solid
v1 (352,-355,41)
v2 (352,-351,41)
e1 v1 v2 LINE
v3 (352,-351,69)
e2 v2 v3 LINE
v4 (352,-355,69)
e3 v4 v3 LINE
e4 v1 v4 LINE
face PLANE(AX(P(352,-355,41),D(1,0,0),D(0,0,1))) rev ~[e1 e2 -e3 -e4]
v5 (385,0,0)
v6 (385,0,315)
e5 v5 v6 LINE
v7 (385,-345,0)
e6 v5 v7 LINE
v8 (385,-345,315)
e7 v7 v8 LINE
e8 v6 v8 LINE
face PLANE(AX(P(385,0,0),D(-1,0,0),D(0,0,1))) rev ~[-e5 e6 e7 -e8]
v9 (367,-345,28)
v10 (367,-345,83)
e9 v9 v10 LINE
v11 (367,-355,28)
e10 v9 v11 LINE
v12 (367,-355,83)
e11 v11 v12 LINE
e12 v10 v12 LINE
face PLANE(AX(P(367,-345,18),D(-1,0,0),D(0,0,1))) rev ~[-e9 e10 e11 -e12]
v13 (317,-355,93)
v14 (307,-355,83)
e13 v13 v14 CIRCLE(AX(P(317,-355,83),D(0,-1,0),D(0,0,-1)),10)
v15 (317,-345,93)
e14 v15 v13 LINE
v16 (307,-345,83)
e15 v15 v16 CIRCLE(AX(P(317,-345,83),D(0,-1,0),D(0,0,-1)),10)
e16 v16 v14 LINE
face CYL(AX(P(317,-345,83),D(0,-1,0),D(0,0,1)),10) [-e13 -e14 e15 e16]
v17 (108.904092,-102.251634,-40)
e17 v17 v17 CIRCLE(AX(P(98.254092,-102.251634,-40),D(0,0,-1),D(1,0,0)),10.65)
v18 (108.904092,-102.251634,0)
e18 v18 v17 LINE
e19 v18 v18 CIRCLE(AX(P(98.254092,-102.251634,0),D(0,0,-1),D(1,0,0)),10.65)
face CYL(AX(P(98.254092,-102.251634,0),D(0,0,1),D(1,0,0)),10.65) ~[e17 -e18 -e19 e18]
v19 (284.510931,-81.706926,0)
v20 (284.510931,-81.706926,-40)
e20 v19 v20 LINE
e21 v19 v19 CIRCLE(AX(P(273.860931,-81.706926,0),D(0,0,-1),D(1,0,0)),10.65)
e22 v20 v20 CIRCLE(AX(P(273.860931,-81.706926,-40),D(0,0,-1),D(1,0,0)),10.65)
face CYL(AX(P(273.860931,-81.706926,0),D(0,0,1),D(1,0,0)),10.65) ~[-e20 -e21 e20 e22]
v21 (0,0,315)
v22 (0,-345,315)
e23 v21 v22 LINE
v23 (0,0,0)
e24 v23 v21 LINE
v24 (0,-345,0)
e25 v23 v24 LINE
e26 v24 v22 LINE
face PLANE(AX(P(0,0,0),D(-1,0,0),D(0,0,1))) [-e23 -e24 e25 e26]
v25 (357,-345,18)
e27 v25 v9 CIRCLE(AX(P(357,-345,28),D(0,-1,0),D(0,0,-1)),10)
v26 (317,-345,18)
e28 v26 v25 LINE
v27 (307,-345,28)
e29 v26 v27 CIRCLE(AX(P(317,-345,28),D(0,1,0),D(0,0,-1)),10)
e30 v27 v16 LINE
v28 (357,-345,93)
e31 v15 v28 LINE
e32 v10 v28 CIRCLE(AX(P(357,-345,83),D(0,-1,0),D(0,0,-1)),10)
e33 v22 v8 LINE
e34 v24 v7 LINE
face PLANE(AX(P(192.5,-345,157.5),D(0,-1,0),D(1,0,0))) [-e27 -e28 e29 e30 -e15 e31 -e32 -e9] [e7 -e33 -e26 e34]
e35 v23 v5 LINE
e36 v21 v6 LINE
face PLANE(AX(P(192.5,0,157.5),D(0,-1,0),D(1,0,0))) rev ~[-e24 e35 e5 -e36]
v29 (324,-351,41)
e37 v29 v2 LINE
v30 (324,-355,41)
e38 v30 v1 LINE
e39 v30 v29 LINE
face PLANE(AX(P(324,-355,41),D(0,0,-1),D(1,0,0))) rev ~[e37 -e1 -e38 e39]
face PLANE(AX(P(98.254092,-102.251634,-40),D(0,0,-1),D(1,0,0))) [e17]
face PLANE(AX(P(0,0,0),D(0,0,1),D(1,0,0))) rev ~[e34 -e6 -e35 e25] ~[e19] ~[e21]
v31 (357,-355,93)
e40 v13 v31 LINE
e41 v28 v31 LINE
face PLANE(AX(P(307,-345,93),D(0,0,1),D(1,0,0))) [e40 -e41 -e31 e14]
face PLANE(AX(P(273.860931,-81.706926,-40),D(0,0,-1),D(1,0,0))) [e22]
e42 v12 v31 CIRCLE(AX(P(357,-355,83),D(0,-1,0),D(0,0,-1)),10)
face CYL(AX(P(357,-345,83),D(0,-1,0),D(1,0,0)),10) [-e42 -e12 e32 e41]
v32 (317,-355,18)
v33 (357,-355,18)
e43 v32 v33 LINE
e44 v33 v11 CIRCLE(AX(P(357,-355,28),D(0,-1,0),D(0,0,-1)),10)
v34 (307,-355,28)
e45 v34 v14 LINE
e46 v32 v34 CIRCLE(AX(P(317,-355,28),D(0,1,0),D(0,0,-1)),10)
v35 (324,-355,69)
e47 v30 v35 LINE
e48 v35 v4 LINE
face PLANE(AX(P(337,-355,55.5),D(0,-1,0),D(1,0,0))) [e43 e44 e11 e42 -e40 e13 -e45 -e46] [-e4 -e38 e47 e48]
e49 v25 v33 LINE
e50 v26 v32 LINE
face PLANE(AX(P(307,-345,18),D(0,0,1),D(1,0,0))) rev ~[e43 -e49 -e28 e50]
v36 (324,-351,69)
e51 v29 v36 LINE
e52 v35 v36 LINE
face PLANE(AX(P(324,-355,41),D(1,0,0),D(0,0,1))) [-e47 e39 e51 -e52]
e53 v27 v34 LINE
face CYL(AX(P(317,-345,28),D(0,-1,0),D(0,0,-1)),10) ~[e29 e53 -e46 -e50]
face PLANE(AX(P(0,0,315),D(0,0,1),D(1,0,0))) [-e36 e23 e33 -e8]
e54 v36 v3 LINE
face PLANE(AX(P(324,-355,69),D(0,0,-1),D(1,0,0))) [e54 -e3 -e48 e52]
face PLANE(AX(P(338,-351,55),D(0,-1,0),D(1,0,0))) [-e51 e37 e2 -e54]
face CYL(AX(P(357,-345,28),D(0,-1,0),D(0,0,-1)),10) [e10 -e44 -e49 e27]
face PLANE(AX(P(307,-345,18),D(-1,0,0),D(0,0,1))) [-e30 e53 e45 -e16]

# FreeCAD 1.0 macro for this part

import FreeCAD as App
import Part
import Sketcher


def edges_at(feature, points):
    """Names of the edges that pass closest to the given points."""
    edges = feature.Shape.Edges
    near = lambda p: min(range(len(edges)), key=lambda i: edges[i].distToShape(Part.Vertex(*p))[0])
    return sorted({f"Edge{near(p) + 1}" for p in points})

doc = App.newDocument("Part")
params = doc.addObject("Spreadsheet::Sheet", "Params")
for row, (alias, value) in enumerate([
    ("sketch1_width", "385 mm"),
    ("sketch1_height", "315 mm"),
    ("pad1_length", "345 mm"),
    ("sketch2_width", "60 mm"),
    ("sketch2_height", "75 mm"),
    ("pad2_length", "10 mm"),
    ("fillet_radius", "10 mm"),
    ("sketch3_width", "28 mm"),
    ("pocket1_length", "4 mm"),
    ("sketch4_diameter", "21.3 mm"),
    ("pad3_length", "40 mm"),
    ("sketch5_diameter", "21.3 mm"),
    ("pad4_length", "40 mm"),
], start=1):
    params.set(f"A{row}", alias)
    params.set(f"B{row}", "=" + value)
    params.setAlias(f"B{row}", alias)

body = doc.addObject("PartDesign::Body", "Body")

# Sketch on XZ plane
sketch1 = body.newObject("Sketcher::SketchObject", "Sketch")
sketch1.AttachmentSupport = (doc.getObject("XZ_Plane"), [""])
sketch1.MapMode = "FlatFace"
sketch1.addGeometry(Part.LineSegment(App.Vector(0, 315, 0), App.Vector(0, 0, 0)), False)
sketch1.addGeometry(Part.LineSegment(App.Vector(0, 0, 0), App.Vector(385, 0, 0)), False)
sketch1.addGeometry(Part.LineSegment(App.Vector(385, 0, 0), App.Vector(385, 315, 0)), False)
sketch1.addGeometry(Part.LineSegment(App.Vector(385, 315, 0), App.Vector(0, 315, 0)), False)
sketch1.addConstraint(Sketcher.Constraint("Coincident", 0, 2, 1, 1))
sketch1.addConstraint(Sketcher.Constraint("Coincident", 1, 2, 2, 1))
sketch1.addConstraint(Sketcher.Constraint("Coincident", 2, 2, 3, 1))
sketch1.addConstraint(Sketcher.Constraint("Coincident", 3, 2, 0, 1))
sketch1.addConstraint(Sketcher.Constraint("Vertical", 0))
sketch1.addConstraint(Sketcher.Constraint("Horizontal", 1))
sketch1.addConstraint(Sketcher.Constraint("Vertical", 2))
sketch1.addConstraint(Sketcher.Constraint("Horizontal", 3))
sketch1.addConstraint(Sketcher.Constraint("Coincident", 0, 2, -1, 1))
sketch1.addConstraint(Sketcher.Constraint("DistanceX", 1, 1, 1, 2, 385.0))
sketch1.addConstraint(Sketcher.Constraint("DistanceY", 0, 2, 0, 1, 315.0))
sketch1.setExpression("Constraints[9]", "Params.sketch1_width")
sketch1.setExpression("Constraints[10]", "Params.sketch1_height")
pad1 = body.newObject("PartDesign::Pad", "Pad")
pad1.Profile = sketch1
pad1.setExpression("Length", "Params.pad1_length")

# Sketch on XZ plane
sketch2 = body.newObject("Sketcher::SketchObject", "Sketch001")
sketch2.AttachmentSupport = (doc.getObject("XZ_Plane"), [""])
sketch2.MapMode = "FlatFace"
sketch2.AttachmentOffset = App.Placement(App.Vector(0, 0, 345), App.Rotation())
sketch2.addGeometry(Part.LineSegment(App.Vector(307, 93, 0), App.Vector(307, 18, 0)), False)
sketch2.addGeometry(Part.LineSegment(App.Vector(307, 18, 0), App.Vector(367, 18, 0)), False)
sketch2.addGeometry(Part.LineSegment(App.Vector(367, 18, 0), App.Vector(367, 93, 0)), False)
sketch2.addGeometry(Part.LineSegment(App.Vector(367, 93, 0), App.Vector(307, 93, 0)), False)
sketch2.addConstraint(Sketcher.Constraint("Coincident", 0, 2, 1, 1))
sketch2.addConstraint(Sketcher.Constraint("Coincident", 1, 2, 2, 1))
sketch2.addConstraint(Sketcher.Constraint("Coincident", 2, 2, 3, 1))
sketch2.addConstraint(Sketcher.Constraint("Coincident", 3, 2, 0, 1))
sketch2.addConstraint(Sketcher.Constraint("Vertical", 0))
sketch2.addConstraint(Sketcher.Constraint("Horizontal", 1))
sketch2.addConstraint(Sketcher.Constraint("Vertical", 2))
sketch2.addConstraint(Sketcher.Constraint("Horizontal", 3))
sketch2.addConstraint(Sketcher.Constraint("DistanceX", 1, 1, 1, 2, 60.0))
sketch2.addConstraint(Sketcher.Constraint("DistanceY", 0, 2, 0, 1, 75.0))
sketch2.addConstraint(Sketcher.Constraint("DistanceX", -1, 1, 0, 2, 307.0))
sketch2.addConstraint(Sketcher.Constraint("DistanceY", -1, 1, 0, 2, 18.0))
sketch2.setExpression("Constraints[8]", "Params.sketch2_width")
sketch2.setExpression("Constraints[9]", "Params.sketch2_height")
pad2 = body.newObject("PartDesign::Pad", "Pad001")
pad2.Profile = sketch2
pad2.setExpression("Length", "Params.pad2_length")
doc.recompute()

fillet = body.newObject("PartDesign::Fillet", "Fillet")
fillet.Base = (pad2, edges_at(pad2, [
    (367, -350, 93),
    (367, -350, 18),
    (307, -350, 93),
    (307, -350, 18),
]))
fillet.setExpression("Radius", "Params.fillet_radius")

# Sketch on XZ plane
sketch3 = body.newObject("Sketcher::SketchObject", "Sketch002")
sketch3.AttachmentSupport = (doc.getObject("XZ_Plane"), [""])
sketch3.MapMode = "FlatFace"
sketch3.AttachmentOffset = App.Placement(App.Vector(0, 0, 355), App.Rotation())
sketch3.addGeometry(Part.LineSegment(App.Vector(324, 69, 0), App.Vector(324, 41, 0)), False)
sketch3.addGeometry(Part.LineSegment(App.Vector(324, 41, 0), App.Vector(352, 41, 0)), False)
sketch3.addGeometry(Part.LineSegment(App.Vector(352, 41, 0), App.Vector(352, 69, 0)), False)
sketch3.addGeometry(Part.LineSegment(App.Vector(352, 69, 0), App.Vector(324, 69, 0)), False)
sketch3.addConstraint(Sketcher.Constraint("Coincident", 0, 2, 1, 1))
sketch3.addConstraint(Sketcher.Constraint("Coincident", 1, 2, 2, 1))
sketch3.addConstraint(Sketcher.Constraint("Coincident", 2, 2, 3, 1))
sketch3.addConstraint(Sketcher.Constraint("Coincident", 3, 2, 0, 1))
sketch3.addConstraint(Sketcher.Constraint("Vertical", 0))
sketch3.addConstraint(Sketcher.Constraint("Horizontal", 1))
sketch3.addConstraint(Sketcher.Constraint("Vertical", 2))
sketch3.addConstraint(Sketcher.Constraint("Horizontal", 3))
sketch3.addConstraint(Sketcher.Constraint("Equal", 3, 0))
sketch3.addConstraint(Sketcher.Constraint("DistanceX", 1, 1, 1, 2, 28.0))
sketch3.addConstraint(Sketcher.Constraint("DistanceX", -1, 1, 0, 2, 324.0))
sketch3.addConstraint(Sketcher.Constraint("DistanceY", -1, 1, 0, 2, 41.0))
sketch3.setExpression("Constraints[9]", "Params.sketch3_width")
pocket1 = body.newObject("PartDesign::Pocket", "Pocket")
pocket1.Profile = sketch3
pocket1.setExpression("Length", "Params.pocket1_length")

# Sketch on XY plane
sketch4 = body.newObject("Sketcher::SketchObject", "Sketch003")
sketch4.AttachmentSupport = (doc.getObject("XY_Plane"), [""])
sketch4.MapMode = "FlatFace"
sketch4.addGeometry(Part.Circle(App.Vector(98, -102, 0), App.Vector(0, 0, 1), 11), False)
sketch4.addConstraint(Sketcher.Constraint("Diameter", 0, 21.3))
sketch4.addConstraint(Sketcher.Constraint("DistanceX", -1, 1, 0, 3, 98.254092))
sketch4.addConstraint(Sketcher.Constraint("DistanceY", 0, 3, -1, 1, 102.251634))
sketch4.setExpression("Constraints[0]", "Params.sketch4_diameter")
pad3 = body.newObject("PartDesign::Pad", "Pad002")
pad3.Profile = sketch4
pad3.setExpression("Length", "Params.pad3_length")
pad3.Reversed = True

# Sketch on XY plane
sketch5 = body.newObject("Sketcher::SketchObject", "Sketch004")
sketch5.AttachmentSupport = (doc.getObject("XY_Plane"), [""])
sketch5.MapMode = "FlatFace"
sketch5.addGeometry(Part.Circle(App.Vector(274, -82, 0), App.Vector(0, 0, 1), 11), False)
sketch5.addConstraint(Sketcher.Constraint("Diameter", 0, 21.3))
sketch5.addConstraint(Sketcher.Constraint("DistanceX", -1, 1, 0, 3, 273.860931))
sketch5.addConstraint(Sketcher.Constraint("DistanceY", 0, 3, -1, 1, 81.706926))
sketch5.setExpression("Constraints[0]", "Params.sketch5_diameter")
pad4 = body.newObject("PartDesign::Pad", "Pad003")
pad4.Profile = sketch5
pad4.setExpression("Length", "Params.pad4_length")
pad4.Reversed = True

doc.recompute()
